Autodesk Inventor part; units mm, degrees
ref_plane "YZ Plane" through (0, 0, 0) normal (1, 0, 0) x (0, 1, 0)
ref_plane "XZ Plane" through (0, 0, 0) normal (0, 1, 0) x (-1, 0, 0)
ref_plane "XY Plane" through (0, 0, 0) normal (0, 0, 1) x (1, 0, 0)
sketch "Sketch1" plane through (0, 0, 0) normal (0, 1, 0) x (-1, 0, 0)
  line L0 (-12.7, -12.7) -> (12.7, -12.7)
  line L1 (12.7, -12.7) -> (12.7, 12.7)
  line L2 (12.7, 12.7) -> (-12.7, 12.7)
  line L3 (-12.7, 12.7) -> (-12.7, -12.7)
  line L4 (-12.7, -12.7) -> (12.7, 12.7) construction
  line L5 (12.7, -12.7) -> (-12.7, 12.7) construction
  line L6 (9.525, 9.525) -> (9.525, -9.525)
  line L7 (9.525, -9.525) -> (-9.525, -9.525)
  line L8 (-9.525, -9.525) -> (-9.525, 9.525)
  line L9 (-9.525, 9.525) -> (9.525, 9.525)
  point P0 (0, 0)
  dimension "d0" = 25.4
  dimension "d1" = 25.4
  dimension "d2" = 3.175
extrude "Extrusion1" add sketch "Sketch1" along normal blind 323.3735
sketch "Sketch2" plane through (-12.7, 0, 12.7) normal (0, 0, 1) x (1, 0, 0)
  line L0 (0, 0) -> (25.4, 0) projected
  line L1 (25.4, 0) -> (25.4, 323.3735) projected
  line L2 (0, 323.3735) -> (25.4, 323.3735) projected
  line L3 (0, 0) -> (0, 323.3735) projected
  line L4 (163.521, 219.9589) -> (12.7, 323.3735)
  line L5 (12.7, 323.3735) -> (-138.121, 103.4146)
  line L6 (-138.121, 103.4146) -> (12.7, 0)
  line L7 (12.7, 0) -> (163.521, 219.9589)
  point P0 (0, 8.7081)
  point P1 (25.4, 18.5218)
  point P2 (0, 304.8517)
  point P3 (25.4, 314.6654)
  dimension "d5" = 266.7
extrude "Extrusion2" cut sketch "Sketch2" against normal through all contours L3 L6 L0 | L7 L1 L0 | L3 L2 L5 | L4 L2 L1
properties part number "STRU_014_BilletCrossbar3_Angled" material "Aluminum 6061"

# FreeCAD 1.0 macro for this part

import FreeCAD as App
import Part
import Sketcher
Q = App.Units.Quantity

doc = App.newDocument("Part")
body = doc.addObject("PartDesign::Body", "Body")

# Sketch on XZ plane
sketch1 = body.newObject("Sketcher::SketchObject", "Sketch")
sketch1.AttachmentSupport = (doc.getObject("XZ_Plane"), [""])
sketch1.MapMode = "FlatFace"
sketch1.addGeometry([
    Part.LineSegment(App.Vector(13, 13, 0), App.Vector(13, -13, 0)),  # 0
    Part.LineSegment(App.Vector(13, -13, 0), App.Vector(-13, -13, 0)),  # 1
    Part.LineSegment(App.Vector(-13, -13, 0), App.Vector(-13, 13, 0)),  # 2
    Part.LineSegment(App.Vector(-13, 13, 0), App.Vector(13, 13, 0)),  # 3
    Part.LineSegment(App.Vector(10, 10, 0), App.Vector(-10, 10, 0)),  # 4
    Part.LineSegment(App.Vector(-10, 10, 0), App.Vector(-10, -10, 0)),  # 5
    Part.LineSegment(App.Vector(-10, -10, 0), App.Vector(10, -10, 0)),  # 6
    Part.LineSegment(App.Vector(10, -10, 0), App.Vector(10, 10, 0)),  # 7
], False)
sketch1.addConstraint([
    Sketcher.Constraint("Coincident", 0, 2, 1, 1),
    Sketcher.Constraint("Coincident", 1, 2, 2, 1),
    Sketcher.Constraint("Coincident", 2, 2, 3, 1),
    Sketcher.Constraint("Coincident", 3, 2, 0, 1),
    Sketcher.Constraint("Coincident", 4, 2, 5, 1),
    Sketcher.Constraint("Coincident", 5, 2, 6, 1),
    Sketcher.Constraint("Coincident", 6, 2, 7, 1),
    Sketcher.Constraint("Coincident", 7, 2, 4, 1),
    Sketcher.Constraint("Vertical", 0),
    Sketcher.Constraint("Horizontal", 1),
    Sketcher.Constraint("Vertical", 2),
    Sketcher.Constraint("Horizontal", 3),
    Sketcher.Constraint("Horizontal", 4),
    Sketcher.Constraint("Vertical", 5),
    Sketcher.Constraint("Horizontal", 6),
    Sketcher.Constraint("Vertical", 7),
    Sketcher.Constraint("Symmetric", 0, 2, 2, 2, -1, 1),
    Sketcher.Constraint("Symmetric", 4, 2, 6, 2, -1, 1),
    Sketcher.Constraint("Equal", 3, 0),
    Sketcher.Constraint("Equal", 6, 5),
    Sketcher.Constraint("DistanceX", 1, 2, 1, 1, Q("1 in")),
    Sketcher.Constraint("DistanceX", 2, 2, 4, 2, Q("0.125 in")),
])
pad1 = body.newObject("PartDesign::Pad", "Pad")
pad1.Profile = sketch1
pad1.Length = 323.3735
pad1.Reversed = True

# Sketch on XY plane
sketch2 = body.newObject("Sketcher::SketchObject", "Sketch001")
sketch2.AttachmentSupport = (doc.getObject("XY_Plane"), [""])
sketch2.MapMode = "FlatFace"
sketch2.AttachmentOffset = App.Placement(App.Vector(0, 0, 0.5 * 25.4), App.Rotation())
sketch2.addGeometry([
    Part.LineSegment(App.Vector(-13, 9, 0), App.Vector(-13, 0, 0)),  # 0
    Part.LineSegment(App.Vector(-13, 0, 0), App.Vector(0, 0, 0)),  # 1
    Part.LineSegment(App.Vector(0, 0, 0), App.Vector(-13, 9, 0)),  # 2
    Part.LineSegment(App.Vector(13, 19, 0), App.Vector(0, 0, 0)),  # 3
    Part.LineSegment(App.Vector(0, 0, 0), App.Vector(13, 0, 0)),  # 4
    Part.LineSegment(App.Vector(13, 0, 0), App.Vector(13, 19, 0)),  # 5
    Part.LineSegment(App.Vector(-13, 323, 0), App.Vector(-13, 305, 0)),  # 6
    Part.LineSegment(App.Vector(-13, 305, 0), App.Vector(0, 323, 0)),  # 7
    Part.LineSegment(App.Vector(0, 323, 0), App.Vector(-13, 323, 0)),  # 8
    Part.LineSegment(App.Vector(0, 323, 0), App.Vector(13, 315, 0)),  # 9
    Part.LineSegment(App.Vector(13, 315, 0), App.Vector(13, 323, 0)),  # 10
    Part.LineSegment(App.Vector(13, 323, 0), App.Vector(0, 323, 0)),  # 11
], False)
sketch2.addConstraint([
    Sketcher.Constraint("Coincident", 0, 2, 1, 1),
    Sketcher.Constraint("Coincident", 1, 2, 2, 1),
    Sketcher.Constraint("Coincident", 2, 2, 0, 1),
    Sketcher.Constraint("Coincident", 3, 2, 4, 1),
    Sketcher.Constraint("Coincident", 4, 2, 5, 1),
    Sketcher.Constraint("Coincident", 5, 2, 3, 1),
    Sketcher.Constraint("Coincident", 6, 2, 7, 1),
    Sketcher.Constraint("Coincident", 7, 2, 8, 1),
    Sketcher.Constraint("Coincident", 8, 2, 6, 1),
    Sketcher.Constraint("Coincident", 9, 2, 10, 1),
    Sketcher.Constraint("Coincident", 10, 2, 11, 1),
    Sketcher.Constraint("Coincident", 11, 2, 9, 1),
    Sketcher.Constraint("Vertical", 0),
    Sketcher.Constraint("Horizontal", 1),
    Sketcher.Constraint("Horizontal", 4),
    Sketcher.Constraint("Vertical", 5),
    Sketcher.Constraint("Vertical", 6),
    Sketcher.Constraint("Horizontal", 8),
    Sketcher.Constraint("Vertical", 10),
    Sketcher.Constraint("Horizontal", 11),
    Sketcher.Constraint("Coincident", 1, 2, -1, 1),
    Sketcher.Constraint("Coincident", 3, 2, -1, 1),
    Sketcher.Constraint("Coincident", 11, 2, 7, 2),
    Sketcher.Constraint("PointOnObject", 7, 2, -2),
    Sketcher.Constraint("Perpendicular", 2, 3),
    Sketcher.Constraint("Parallel", 3, 7),
    Sketcher.Constraint("Perpendicular", 7, 9),
    Sketcher.Constraint("Vertical", 2, 2, 6, 2),
    Sketcher.Constraint("Vertical", 5, 2, 9, 2),
    Sketcher.Constraint("Equal", 1, 4),
    Sketcher.Constraint("DistanceX", 1, 1, 1, 2, Q("0.5 in")),
    Sketcher.Constraint("DistanceY", 5, 1, 5, 2, Q("0.7292 in")),
    Sketcher.Constraint("DistanceY", -1, 1, 9, 2, Q("12.3884 in")),
])
pocket1 = body.newObject("PartDesign::Pocket", "Pocket")
pocket1.Profile = sketch2
pocket1.Type = "ThroughAll"

doc.recompute()
